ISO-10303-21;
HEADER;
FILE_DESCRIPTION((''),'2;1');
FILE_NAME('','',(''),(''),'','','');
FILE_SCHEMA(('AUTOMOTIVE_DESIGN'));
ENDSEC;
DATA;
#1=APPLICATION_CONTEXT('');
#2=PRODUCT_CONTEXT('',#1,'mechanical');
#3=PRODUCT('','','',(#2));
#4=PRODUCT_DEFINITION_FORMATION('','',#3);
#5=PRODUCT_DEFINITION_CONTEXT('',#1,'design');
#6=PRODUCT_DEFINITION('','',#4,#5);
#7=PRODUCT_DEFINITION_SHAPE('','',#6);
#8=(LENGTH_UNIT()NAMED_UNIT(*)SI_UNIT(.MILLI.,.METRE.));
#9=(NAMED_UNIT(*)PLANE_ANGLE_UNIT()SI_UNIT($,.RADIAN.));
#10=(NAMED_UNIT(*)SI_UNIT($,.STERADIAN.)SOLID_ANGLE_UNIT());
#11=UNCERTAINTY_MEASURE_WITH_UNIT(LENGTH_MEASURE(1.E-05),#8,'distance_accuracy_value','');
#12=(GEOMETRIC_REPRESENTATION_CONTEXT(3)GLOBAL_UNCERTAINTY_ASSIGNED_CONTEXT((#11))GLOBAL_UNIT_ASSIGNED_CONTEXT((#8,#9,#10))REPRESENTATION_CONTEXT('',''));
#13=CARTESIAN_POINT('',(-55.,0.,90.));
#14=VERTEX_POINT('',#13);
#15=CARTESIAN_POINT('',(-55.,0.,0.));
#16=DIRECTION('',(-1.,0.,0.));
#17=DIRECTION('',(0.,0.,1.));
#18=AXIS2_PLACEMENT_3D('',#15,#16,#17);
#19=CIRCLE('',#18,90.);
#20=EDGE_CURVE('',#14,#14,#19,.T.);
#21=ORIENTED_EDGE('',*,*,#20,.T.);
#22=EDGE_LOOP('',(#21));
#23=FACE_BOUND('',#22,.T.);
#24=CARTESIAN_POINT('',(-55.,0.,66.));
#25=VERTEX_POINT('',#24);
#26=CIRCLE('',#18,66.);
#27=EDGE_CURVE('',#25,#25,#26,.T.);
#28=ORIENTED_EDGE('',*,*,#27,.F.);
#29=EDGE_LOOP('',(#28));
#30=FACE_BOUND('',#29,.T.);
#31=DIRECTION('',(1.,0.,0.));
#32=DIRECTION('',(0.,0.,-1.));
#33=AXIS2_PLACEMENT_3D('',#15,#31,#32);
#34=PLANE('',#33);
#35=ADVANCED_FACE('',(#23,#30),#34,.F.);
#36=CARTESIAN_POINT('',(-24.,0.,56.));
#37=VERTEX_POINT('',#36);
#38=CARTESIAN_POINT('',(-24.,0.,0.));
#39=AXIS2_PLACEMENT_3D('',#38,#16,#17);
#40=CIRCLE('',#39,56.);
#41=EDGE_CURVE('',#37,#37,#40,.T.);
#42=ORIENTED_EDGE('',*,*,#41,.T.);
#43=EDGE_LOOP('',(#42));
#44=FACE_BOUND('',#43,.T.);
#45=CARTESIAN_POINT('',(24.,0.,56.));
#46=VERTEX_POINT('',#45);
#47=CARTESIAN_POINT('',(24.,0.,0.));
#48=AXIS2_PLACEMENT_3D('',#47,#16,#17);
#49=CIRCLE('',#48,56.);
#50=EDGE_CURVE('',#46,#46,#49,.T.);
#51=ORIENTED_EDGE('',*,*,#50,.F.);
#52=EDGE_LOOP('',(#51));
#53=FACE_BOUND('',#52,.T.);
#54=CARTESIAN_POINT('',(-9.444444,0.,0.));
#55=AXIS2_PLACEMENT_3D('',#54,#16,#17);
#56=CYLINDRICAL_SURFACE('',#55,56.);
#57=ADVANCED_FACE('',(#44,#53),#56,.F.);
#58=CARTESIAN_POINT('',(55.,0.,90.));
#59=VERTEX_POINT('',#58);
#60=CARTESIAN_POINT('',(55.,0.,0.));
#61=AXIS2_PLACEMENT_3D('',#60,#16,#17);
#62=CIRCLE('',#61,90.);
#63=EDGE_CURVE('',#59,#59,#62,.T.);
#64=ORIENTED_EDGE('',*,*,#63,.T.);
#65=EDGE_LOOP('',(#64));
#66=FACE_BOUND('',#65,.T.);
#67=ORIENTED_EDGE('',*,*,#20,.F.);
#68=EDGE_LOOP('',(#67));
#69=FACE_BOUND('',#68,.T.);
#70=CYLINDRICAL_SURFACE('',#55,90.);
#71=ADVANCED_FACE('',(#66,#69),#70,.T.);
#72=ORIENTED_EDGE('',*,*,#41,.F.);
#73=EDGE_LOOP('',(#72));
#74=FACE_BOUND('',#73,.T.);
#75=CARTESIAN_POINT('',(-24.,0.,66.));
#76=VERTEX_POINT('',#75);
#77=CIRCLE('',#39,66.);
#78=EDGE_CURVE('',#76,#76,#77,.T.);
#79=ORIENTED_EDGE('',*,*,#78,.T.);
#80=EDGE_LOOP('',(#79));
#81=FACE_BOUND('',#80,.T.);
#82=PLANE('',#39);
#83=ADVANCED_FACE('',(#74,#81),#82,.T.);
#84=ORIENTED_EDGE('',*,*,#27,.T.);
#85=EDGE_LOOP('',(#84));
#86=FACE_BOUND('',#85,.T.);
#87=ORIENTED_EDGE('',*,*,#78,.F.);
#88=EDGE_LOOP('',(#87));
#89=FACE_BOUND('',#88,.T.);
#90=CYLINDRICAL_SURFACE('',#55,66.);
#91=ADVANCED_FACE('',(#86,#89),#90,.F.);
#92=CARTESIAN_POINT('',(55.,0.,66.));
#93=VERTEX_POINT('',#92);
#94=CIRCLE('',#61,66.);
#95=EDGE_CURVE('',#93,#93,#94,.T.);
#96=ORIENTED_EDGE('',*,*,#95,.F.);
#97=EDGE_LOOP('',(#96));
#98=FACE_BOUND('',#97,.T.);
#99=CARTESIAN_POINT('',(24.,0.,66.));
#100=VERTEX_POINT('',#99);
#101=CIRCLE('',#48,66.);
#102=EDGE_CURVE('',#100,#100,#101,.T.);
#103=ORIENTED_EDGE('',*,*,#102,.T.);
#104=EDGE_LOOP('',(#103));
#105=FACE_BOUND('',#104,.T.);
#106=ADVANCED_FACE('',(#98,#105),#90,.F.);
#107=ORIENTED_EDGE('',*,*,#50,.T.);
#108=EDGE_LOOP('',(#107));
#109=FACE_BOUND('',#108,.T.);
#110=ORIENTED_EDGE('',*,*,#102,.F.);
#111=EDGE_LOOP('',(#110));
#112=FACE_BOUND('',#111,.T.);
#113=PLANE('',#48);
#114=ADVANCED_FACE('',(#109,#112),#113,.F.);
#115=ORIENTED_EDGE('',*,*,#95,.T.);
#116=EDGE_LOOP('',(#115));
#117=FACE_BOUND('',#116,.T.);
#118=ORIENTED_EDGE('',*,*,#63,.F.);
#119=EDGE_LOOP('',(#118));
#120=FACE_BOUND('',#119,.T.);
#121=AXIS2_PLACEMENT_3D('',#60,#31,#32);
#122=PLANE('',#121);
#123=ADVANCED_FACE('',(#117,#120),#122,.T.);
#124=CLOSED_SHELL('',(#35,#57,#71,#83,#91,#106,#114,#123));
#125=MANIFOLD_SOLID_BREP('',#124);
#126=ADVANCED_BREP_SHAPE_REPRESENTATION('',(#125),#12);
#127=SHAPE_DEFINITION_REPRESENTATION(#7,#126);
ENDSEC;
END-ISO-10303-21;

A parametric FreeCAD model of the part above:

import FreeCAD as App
import Part
import Sketcher

V = App.Vector
Q = App.Units.Quantity

doc = App.newDocument("Part")
body = doc.addObject("PartDesign::Body", "Body")

sketch1 = doc.addObject("Sketcher::SketchObject", "Sketch")
body.addObject(sketch1)
sketch1.AttachmentSupport = (doc.XY_Plane, [""])
sketch1.MapMode = "FlatFace"
sketch1.addGeometry([
    Part.LineSegment(V(-55, 90, 0), V(-55, 66, 0)),
    Part.LineSegment(V(-55, 66, 0), V(-24, 66, 0)),
    Part.LineSegment(V(-24, 66, 0), V(-24, 56, 0)),
    Part.LineSegment(V(-24, 56, 0), V(24, 56, 0)),
    Part.LineSegment(V(24, 56, 0), V(24, 66, 0)),
    Part.LineSegment(V(24, 66, 0), V(55, 66, 0)),
    Part.LineSegment(V(55, 66, 0), V(55, 90, 0)),
    Part.LineSegment(V(55, 90, 0), V(-55, 90, 0)),
], False)
sketch1.addConstraint([
    Sketcher.Constraint("Coincident", 0, 2, 1, 1),
    Sketcher.Constraint("Coincident", 1, 2, 2, 1),
    Sketcher.Constraint("Coincident", 2, 2, 3, 1),
    Sketcher.Constraint("Coincident", 3, 2, 4, 1),
    Sketcher.Constraint("Coincident", 4, 2, 5, 1),
    Sketcher.Constraint("Coincident", 5, 2, 6, 1),
    Sketcher.Constraint("Coincident", 6, 2, 7, 1),
    Sketcher.Constraint("Coincident", 7, 2, 0, 1),
    Sketcher.Constraint("Vertical", 0),
    Sketcher.Constraint("Horizontal", 1),
    Sketcher.Constraint("Vertical", 2),
    Sketcher.Constraint("Horizontal", 3),
    Sketcher.Constraint("Vertical", 4),
    Sketcher.Constraint("Horizontal", 5),
    Sketcher.Constraint("Vertical", 6),
    Sketcher.Constraint("Horizontal", 7),
    Sketcher.Constraint("Symmetric", 1, 2, 4, 2, -2),
    Sketcher.Constraint("Equal", 1, 5),
    Sketcher.Constraint("DistanceX", 1, 1, 1, 2, Q("31 mm")),
    Sketcher.Constraint("DistanceX", 3, 1, 3, 2, Q("48 mm")),
    Sketcher.Constraint("DistanceY", 0, 2, 0, 1, Q("24 mm")),
    Sketcher.Constraint("DistanceY", 2, 2, 2, 1, Q("10 mm")),
    Sketcher.Constraint("DistanceY", -1, 1, 0, 2, Q("66 mm")),
])
revolution = doc.addObject("PartDesign::Revolution", "Revolution")
body.addObject(revolution)
revolution.Profile = sketch1
revolution.ReferenceAxis = (sketch1, ["H_Axis"])
revolution.Angle = 360

doc.recompute()
